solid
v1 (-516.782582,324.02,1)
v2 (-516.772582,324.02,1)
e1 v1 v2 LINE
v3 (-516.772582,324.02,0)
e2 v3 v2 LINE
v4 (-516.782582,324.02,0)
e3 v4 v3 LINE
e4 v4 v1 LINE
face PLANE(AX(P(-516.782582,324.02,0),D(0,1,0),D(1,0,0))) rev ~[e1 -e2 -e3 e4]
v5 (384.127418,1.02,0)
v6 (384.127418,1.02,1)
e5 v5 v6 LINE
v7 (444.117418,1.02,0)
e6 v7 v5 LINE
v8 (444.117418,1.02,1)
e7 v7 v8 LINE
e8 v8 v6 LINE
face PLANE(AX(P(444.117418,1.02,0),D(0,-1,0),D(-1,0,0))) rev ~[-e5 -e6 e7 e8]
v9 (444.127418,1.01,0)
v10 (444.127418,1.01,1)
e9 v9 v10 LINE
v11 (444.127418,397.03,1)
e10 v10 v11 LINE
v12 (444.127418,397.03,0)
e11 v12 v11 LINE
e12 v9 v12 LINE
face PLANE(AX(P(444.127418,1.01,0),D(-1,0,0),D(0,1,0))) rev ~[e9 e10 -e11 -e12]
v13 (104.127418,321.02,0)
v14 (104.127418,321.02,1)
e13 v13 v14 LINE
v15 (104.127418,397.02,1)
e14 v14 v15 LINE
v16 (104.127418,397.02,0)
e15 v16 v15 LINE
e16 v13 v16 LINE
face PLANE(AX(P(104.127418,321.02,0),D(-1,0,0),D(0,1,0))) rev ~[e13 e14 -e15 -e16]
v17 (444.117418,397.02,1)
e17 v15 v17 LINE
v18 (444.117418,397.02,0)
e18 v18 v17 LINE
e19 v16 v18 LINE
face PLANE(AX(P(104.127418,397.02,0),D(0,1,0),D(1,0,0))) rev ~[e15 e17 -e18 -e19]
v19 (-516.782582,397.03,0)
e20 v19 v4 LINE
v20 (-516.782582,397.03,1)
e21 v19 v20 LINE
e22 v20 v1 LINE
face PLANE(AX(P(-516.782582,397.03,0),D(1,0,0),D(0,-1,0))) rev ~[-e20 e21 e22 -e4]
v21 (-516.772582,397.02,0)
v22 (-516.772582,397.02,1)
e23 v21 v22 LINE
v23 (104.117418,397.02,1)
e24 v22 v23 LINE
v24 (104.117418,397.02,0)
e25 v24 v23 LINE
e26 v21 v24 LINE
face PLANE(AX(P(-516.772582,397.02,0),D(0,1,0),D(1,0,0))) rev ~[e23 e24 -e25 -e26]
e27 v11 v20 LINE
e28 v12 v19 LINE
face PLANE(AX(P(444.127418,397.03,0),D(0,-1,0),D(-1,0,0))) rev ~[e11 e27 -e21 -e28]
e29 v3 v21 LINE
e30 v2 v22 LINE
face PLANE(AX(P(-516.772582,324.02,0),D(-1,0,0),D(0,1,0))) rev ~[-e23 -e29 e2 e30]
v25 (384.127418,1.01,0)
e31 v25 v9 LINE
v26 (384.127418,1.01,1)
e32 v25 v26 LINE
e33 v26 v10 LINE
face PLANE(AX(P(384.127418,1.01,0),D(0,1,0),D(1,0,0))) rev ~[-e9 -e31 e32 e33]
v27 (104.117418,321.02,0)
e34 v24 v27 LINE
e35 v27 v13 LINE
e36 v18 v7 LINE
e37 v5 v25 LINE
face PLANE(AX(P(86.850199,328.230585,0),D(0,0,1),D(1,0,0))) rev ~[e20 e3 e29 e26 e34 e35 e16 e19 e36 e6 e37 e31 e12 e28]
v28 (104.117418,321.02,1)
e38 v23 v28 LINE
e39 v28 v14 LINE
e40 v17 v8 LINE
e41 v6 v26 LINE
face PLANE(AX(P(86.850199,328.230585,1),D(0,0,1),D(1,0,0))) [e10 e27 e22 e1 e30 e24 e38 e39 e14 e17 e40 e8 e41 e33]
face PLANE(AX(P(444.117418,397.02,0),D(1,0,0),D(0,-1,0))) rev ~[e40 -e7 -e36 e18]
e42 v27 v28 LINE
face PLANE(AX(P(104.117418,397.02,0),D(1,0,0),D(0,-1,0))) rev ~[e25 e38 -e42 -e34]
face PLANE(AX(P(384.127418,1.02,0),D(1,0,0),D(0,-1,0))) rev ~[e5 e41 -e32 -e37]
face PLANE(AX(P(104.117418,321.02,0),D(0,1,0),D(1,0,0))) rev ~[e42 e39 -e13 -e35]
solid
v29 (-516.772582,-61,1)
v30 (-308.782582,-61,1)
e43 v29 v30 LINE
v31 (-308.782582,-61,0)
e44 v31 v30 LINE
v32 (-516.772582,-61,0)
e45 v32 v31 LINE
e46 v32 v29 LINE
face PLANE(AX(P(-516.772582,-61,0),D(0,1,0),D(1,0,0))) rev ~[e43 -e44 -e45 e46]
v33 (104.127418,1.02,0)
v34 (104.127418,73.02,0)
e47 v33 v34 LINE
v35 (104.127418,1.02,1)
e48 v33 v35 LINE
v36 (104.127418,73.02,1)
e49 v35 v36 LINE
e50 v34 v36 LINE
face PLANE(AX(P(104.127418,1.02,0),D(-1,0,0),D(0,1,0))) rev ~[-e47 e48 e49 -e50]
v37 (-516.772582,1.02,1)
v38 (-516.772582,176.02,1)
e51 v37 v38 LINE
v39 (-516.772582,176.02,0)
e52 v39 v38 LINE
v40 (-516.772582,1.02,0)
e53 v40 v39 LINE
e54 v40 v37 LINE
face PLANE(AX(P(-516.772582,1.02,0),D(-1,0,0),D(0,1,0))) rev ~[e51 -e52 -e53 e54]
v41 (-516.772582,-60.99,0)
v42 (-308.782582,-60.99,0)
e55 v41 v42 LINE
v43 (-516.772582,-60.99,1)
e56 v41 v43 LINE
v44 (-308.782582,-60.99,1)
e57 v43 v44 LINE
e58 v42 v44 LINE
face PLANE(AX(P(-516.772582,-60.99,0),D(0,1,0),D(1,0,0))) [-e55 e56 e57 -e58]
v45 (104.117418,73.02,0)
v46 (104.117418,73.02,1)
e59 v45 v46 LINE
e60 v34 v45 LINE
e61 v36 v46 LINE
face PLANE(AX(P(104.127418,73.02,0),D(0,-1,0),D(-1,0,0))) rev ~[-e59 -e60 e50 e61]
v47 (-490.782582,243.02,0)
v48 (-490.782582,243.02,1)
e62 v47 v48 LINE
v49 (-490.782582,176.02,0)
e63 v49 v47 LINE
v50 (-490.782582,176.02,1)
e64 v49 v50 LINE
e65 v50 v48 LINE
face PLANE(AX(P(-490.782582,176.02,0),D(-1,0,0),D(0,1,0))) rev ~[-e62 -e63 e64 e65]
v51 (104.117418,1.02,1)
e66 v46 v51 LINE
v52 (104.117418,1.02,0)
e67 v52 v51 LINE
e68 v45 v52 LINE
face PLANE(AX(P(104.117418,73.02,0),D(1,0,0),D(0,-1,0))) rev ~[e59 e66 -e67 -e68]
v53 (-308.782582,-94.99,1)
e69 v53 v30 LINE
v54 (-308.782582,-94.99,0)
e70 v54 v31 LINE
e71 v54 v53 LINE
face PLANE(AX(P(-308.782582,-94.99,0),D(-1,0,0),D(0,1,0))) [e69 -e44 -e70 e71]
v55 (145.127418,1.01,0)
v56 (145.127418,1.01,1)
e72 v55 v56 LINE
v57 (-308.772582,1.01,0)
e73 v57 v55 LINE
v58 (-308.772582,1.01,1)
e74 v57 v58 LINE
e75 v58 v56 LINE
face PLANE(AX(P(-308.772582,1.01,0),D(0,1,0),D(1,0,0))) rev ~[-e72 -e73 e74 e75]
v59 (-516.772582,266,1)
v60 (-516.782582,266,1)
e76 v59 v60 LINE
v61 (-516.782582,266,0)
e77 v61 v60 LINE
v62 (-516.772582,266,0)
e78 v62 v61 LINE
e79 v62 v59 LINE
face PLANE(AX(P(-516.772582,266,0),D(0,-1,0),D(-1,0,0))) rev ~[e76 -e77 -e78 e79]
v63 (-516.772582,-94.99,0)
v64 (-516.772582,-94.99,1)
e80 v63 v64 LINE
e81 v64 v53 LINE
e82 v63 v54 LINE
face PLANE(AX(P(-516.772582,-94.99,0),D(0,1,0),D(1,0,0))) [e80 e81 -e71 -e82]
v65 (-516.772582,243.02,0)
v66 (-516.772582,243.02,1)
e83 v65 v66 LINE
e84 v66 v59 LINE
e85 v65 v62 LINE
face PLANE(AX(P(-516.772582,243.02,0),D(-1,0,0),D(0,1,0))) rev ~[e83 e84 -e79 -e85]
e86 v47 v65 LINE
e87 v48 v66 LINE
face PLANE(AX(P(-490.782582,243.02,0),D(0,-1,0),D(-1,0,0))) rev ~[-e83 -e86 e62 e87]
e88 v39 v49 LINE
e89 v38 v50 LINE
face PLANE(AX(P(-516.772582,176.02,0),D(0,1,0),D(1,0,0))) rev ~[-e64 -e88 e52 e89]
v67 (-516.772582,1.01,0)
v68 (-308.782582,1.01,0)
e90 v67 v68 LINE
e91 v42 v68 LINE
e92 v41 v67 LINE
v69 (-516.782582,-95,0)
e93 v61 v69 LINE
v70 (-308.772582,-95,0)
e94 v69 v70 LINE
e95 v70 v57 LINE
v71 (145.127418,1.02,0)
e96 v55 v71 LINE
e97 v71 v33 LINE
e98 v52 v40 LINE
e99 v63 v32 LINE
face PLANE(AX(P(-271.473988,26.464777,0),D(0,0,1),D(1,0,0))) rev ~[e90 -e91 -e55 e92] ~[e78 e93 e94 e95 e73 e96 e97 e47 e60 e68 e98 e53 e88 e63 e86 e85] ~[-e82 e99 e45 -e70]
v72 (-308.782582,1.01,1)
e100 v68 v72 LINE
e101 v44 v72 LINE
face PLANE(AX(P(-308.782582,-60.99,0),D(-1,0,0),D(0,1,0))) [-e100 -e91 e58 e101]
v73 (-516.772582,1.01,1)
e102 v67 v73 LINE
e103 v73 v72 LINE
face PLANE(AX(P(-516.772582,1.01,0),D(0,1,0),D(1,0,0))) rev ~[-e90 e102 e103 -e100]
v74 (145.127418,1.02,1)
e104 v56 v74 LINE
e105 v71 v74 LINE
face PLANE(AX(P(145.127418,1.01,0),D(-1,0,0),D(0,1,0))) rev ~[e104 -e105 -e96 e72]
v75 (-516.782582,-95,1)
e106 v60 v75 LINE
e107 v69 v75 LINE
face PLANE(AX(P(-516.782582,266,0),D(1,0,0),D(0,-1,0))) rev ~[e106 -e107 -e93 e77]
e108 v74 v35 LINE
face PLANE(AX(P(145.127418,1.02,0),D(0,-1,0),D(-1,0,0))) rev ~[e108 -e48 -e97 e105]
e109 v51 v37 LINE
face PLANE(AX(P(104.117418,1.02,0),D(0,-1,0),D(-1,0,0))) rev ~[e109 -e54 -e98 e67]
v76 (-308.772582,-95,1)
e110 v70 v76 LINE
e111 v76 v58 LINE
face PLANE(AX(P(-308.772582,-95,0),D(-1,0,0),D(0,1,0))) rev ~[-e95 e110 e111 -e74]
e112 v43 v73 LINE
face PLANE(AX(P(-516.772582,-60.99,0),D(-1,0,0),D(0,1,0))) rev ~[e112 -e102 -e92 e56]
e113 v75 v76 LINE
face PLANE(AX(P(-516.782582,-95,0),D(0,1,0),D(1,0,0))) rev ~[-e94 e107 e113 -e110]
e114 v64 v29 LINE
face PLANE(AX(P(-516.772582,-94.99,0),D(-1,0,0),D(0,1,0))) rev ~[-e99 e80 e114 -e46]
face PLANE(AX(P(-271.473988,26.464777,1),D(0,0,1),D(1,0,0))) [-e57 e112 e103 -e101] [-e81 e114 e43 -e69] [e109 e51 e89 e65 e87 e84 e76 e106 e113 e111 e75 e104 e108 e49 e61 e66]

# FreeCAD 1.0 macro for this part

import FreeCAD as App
import Part
import Sketcher


def add_polygon(sketch, points):
    """Adds a closed chain of lines whose ends are joined by coincident constraints."""
    first, n = sketch.GeometryCount, len(points)
    for a, b in zip(points, points[1:] + points[:1]):
        sketch.addGeometry(Part.LineSegment(App.Vector(*a, 0), App.Vector(*b, 0)), False)
    for i in range(n):
        sketch.addConstraint(Sketcher.Constraint("Coincident", first + i, 2, first + (i + 1) % n, 1))

doc = App.newDocument("Part")
body = doc.addObject("PartDesign::Body", "Body")
body.AllowCompound = True

# Sketch on XY plane
sketch1 = body.newObject("Sketcher::SketchObject", "Sketch")
sketch1.AttachmentSupport = (doc.getObject("XY_Plane"), [""])
sketch1.MapMode = "FlatFace"
add_polygon(sketch1, [(104.117418, 73.02), (104.117418, 1.02), (-516.772582, 1.02), (-516.772582, 176.02), (-490.782582, 176.02), (-490.782582, 243.02), (-516.772582, 243.02), (-516.772582, 266), (-516.782582, 266), (-516.782582, -95), (-308.772582, -95), (-308.772582, 1.01), (145.127418, 1.01), (145.127418, 1.02), (104.127418, 1.02), (104.127418, 73.02)])  # lines 0-15
add_polygon(sketch1, [(-308.782582, -94.99), (-516.772582, -94.99), (-516.772582, -61), (-308.782582, -61)])  # lines 16-19
add_polygon(sketch1, [(-308.782582, -60.99), (-516.772582, -60.99), (-516.772582, 1.01), (-308.782582, 1.01)])  # lines 20-23
add_polygon(sketch1, [(104.117418, 397.02), (104.117418, 321.02), (104.127418, 321.02), (104.127418, 397.02), (444.117418, 397.02), (444.117418, 1.02), (384.127418, 1.02), (384.127418, 1.01), (444.127418, 1.01), (444.127418, 397.03), (-516.782582, 397.03), (-516.782582, 324.02), (-516.772582, 324.02), (-516.772582, 397.02)])  # lines 24-37
sketch1.addConstraint(Sketcher.Constraint("Vertical", 0))
sketch1.addConstraint(Sketcher.Constraint("Horizontal", 1))
sketch1.addConstraint(Sketcher.Constraint("Vertical", 2))
sketch1.addConstraint(Sketcher.Constraint("Horizontal", 3))
sketch1.addConstraint(Sketcher.Constraint("Vertical", 4))
sketch1.addConstraint(Sketcher.Constraint("Horizontal", 5))
sketch1.addConstraint(Sketcher.Constraint("Vertical", 6))
sketch1.addConstraint(Sketcher.Constraint("Horizontal", 7))
sketch1.addConstraint(Sketcher.Constraint("Vertical", 8))
sketch1.addConstraint(Sketcher.Constraint("Horizontal", 9))
sketch1.addConstraint(Sketcher.Constraint("Vertical", 10))
sketch1.addConstraint(Sketcher.Constraint("Horizontal", 11))
sketch1.addConstraint(Sketcher.Constraint("Vertical", 12))
sketch1.addConstraint(Sketcher.Constraint("Horizontal", 13))
sketch1.addConstraint(Sketcher.Constraint("Vertical", 14))
sketch1.addConstraint(Sketcher.Constraint("Horizontal", 15))
sketch1.addConstraint(Sketcher.Constraint("Horizontal", 16))
sketch1.addConstraint(Sketcher.Constraint("Vertical", 17))
sketch1.addConstraint(Sketcher.Constraint("Horizontal", 18))
sketch1.addConstraint(Sketcher.Constraint("Vertical", 19))
sketch1.addConstraint(Sketcher.Constraint("Horizontal", 20))
sketch1.addConstraint(Sketcher.Constraint("Vertical", 21))
sketch1.addConstraint(Sketcher.Constraint("Horizontal", 22))
sketch1.addConstraint(Sketcher.Constraint("Vertical", 23))
sketch1.addConstraint(Sketcher.Constraint("Vertical", 24))
sketch1.addConstraint(Sketcher.Constraint("Horizontal", 25))
sketch1.addConstraint(Sketcher.Constraint("Vertical", 26))
sketch1.addConstraint(Sketcher.Constraint("Horizontal", 27))
sketch1.addConstraint(Sketcher.Constraint("Vertical", 28))
sketch1.addConstraint(Sketcher.Constraint("Horizontal", 29))
sketch1.addConstraint(Sketcher.Constraint("Vertical", 30))
sketch1.addConstraint(Sketcher.Constraint("Horizontal", 31))
sketch1.addConstraint(Sketcher.Constraint("Vertical", 32))
sketch1.addConstraint(Sketcher.Constraint("Horizontal", 33))
sketch1.addConstraint(Sketcher.Constraint("Vertical", 34))
sketch1.addConstraint(Sketcher.Constraint("Horizontal", 35))
sketch1.addConstraint(Sketcher.Constraint("Vertical", 36))
sketch1.addConstraint(Sketcher.Constraint("Horizontal", 37))
sketch1.addConstraint(Sketcher.Constraint("Horizontal", 1, 2, 12, 2))
sketch1.addConstraint(Sketcher.Constraint("Horizontal", 11, 2, 21, 2))
sketch1.addConstraint(Sketcher.Constraint("Horizontal", 13, 2, 28, 2))
sketch1.addConstraint(Sketcher.Constraint("Horizontal", 22, 2, 30, 2))
sketch1.addConstraint(Sketcher.Constraint("Horizontal", 27, 2, 36, 2))
sketch1.addConstraint(Sketcher.Constraint("Vertical", 2, 2, 5, 2))
sketch1.addConstraint(Sketcher.Constraint("Vertical", 6, 2, 16, 2))
sketch1.addConstraint(Sketcher.Constraint("Vertical", 17, 2, 20, 2))
sketch1.addConstraint(Sketcher.Constraint("Vertical", 19, 2, 22, 2))
sketch1.addConstraint(Sketcher.Constraint("Vertical", 15, 2, 24, 2))
sketch1.addConstraint(Sketcher.Constraint("Vertical", 14, 2, 25, 2))
sketch1.addConstraint(Sketcher.Constraint("Vertical", 8, 2, 33, 2))
sketch1.addConstraint(Sketcher.Constraint("Vertical", 21, 2, 35, 2))
sketch1.addConstraint(Sketcher.Constraint("Equal", 7, 15))
sketch1.addConstraint(Sketcher.Constraint("Equal", 35, 12))
sketch1.addConstraint(Sketcher.Constraint("DistanceX", 13, 2, 13, 1, 41.0))
sketch1.addConstraint(Sketcher.Constraint("DistanceX", 31, 1, 31, 2, 60.0))
sketch1.addConstraint(Sketcher.Constraint("DistanceY", 0, 2, 0, 1, 72.0))
sketch1.addConstraint(Sketcher.Constraint("DistanceY", 2, 1, 2, 2, 175.0))
sketch1.addConstraint(Sketcher.Constraint("DistanceY", 4, 1, 4, 2, 67.0))
sketch1.addConstraint(Sketcher.Constraint("DistanceY", 8, 2, 8, 1, 361.0))
sketch1.addConstraint(Sketcher.Constraint("DistanceY", 21, 1, 21, 2, 62.0))
sketch1.addConstraint(Sketcher.Constraint("DistanceY", 24, 2, 24, 1, 76.0))
sketch1.addConstraint(Sketcher.Constraint("DistanceY", 28, 2, 28, 1, 396.0))
sketch1.addConstraint(Sketcher.Constraint("DistanceY", 36, 1, 36, 2, 73.0))
sketch1.addConstraint(Sketcher.Constraint("DistanceX", 11, 1, 11, 2, 453.9))
sketch1.addConstraint(Sketcher.Constraint("DistanceY", -1, 1, 6, 2, 266.0))
sketch1.addConstraint(Sketcher.Constraint("DistanceY", 17, 2, -1, 1, 61.0))
sketch1.addConstraint(Sketcher.Constraint("DistanceX", 7, 2, 4, 2, 26.0))
sketch1.addConstraint(Sketcher.Constraint("DistanceX", 1, 2, 9, 2, 208.0))
sketch1.addConstraint(Sketcher.Constraint("DistanceY", 16, 2, 10, 2, 96.0))
sketch1.addConstraint(Sketcher.Constraint("DistanceX", 8, 2, 18, 2, 208.0))
sketch1.addConstraint(Sketcher.Constraint("DistanceX", 24, 2, 27, 2, 340.0))
sketch1.addConstraint(Sketcher.Constraint("DistanceX", 12, 2, 29, 2, 239.0))
sketch1.addConstraint(Sketcher.Constraint("DistanceX", 1, 2, 1, 1, 620.89))
sketch1.addConstraint(Sketcher.Constraint("DistanceY", 6, 1, 6, 2, 22.98))
sketch1.addConstraint(Sketcher.Constraint("DistanceY", 32, 1, 32, 2, 396.02))
sketch1.addConstraint(Sketcher.Constraint("DistanceX", -1, 1, 0, 2, 104.117418))
pad1 = body.newObject("PartDesign::Pad", "Pad")
pad1.Profile = sketch1
pad1.Length = 1

doc.recompute()
